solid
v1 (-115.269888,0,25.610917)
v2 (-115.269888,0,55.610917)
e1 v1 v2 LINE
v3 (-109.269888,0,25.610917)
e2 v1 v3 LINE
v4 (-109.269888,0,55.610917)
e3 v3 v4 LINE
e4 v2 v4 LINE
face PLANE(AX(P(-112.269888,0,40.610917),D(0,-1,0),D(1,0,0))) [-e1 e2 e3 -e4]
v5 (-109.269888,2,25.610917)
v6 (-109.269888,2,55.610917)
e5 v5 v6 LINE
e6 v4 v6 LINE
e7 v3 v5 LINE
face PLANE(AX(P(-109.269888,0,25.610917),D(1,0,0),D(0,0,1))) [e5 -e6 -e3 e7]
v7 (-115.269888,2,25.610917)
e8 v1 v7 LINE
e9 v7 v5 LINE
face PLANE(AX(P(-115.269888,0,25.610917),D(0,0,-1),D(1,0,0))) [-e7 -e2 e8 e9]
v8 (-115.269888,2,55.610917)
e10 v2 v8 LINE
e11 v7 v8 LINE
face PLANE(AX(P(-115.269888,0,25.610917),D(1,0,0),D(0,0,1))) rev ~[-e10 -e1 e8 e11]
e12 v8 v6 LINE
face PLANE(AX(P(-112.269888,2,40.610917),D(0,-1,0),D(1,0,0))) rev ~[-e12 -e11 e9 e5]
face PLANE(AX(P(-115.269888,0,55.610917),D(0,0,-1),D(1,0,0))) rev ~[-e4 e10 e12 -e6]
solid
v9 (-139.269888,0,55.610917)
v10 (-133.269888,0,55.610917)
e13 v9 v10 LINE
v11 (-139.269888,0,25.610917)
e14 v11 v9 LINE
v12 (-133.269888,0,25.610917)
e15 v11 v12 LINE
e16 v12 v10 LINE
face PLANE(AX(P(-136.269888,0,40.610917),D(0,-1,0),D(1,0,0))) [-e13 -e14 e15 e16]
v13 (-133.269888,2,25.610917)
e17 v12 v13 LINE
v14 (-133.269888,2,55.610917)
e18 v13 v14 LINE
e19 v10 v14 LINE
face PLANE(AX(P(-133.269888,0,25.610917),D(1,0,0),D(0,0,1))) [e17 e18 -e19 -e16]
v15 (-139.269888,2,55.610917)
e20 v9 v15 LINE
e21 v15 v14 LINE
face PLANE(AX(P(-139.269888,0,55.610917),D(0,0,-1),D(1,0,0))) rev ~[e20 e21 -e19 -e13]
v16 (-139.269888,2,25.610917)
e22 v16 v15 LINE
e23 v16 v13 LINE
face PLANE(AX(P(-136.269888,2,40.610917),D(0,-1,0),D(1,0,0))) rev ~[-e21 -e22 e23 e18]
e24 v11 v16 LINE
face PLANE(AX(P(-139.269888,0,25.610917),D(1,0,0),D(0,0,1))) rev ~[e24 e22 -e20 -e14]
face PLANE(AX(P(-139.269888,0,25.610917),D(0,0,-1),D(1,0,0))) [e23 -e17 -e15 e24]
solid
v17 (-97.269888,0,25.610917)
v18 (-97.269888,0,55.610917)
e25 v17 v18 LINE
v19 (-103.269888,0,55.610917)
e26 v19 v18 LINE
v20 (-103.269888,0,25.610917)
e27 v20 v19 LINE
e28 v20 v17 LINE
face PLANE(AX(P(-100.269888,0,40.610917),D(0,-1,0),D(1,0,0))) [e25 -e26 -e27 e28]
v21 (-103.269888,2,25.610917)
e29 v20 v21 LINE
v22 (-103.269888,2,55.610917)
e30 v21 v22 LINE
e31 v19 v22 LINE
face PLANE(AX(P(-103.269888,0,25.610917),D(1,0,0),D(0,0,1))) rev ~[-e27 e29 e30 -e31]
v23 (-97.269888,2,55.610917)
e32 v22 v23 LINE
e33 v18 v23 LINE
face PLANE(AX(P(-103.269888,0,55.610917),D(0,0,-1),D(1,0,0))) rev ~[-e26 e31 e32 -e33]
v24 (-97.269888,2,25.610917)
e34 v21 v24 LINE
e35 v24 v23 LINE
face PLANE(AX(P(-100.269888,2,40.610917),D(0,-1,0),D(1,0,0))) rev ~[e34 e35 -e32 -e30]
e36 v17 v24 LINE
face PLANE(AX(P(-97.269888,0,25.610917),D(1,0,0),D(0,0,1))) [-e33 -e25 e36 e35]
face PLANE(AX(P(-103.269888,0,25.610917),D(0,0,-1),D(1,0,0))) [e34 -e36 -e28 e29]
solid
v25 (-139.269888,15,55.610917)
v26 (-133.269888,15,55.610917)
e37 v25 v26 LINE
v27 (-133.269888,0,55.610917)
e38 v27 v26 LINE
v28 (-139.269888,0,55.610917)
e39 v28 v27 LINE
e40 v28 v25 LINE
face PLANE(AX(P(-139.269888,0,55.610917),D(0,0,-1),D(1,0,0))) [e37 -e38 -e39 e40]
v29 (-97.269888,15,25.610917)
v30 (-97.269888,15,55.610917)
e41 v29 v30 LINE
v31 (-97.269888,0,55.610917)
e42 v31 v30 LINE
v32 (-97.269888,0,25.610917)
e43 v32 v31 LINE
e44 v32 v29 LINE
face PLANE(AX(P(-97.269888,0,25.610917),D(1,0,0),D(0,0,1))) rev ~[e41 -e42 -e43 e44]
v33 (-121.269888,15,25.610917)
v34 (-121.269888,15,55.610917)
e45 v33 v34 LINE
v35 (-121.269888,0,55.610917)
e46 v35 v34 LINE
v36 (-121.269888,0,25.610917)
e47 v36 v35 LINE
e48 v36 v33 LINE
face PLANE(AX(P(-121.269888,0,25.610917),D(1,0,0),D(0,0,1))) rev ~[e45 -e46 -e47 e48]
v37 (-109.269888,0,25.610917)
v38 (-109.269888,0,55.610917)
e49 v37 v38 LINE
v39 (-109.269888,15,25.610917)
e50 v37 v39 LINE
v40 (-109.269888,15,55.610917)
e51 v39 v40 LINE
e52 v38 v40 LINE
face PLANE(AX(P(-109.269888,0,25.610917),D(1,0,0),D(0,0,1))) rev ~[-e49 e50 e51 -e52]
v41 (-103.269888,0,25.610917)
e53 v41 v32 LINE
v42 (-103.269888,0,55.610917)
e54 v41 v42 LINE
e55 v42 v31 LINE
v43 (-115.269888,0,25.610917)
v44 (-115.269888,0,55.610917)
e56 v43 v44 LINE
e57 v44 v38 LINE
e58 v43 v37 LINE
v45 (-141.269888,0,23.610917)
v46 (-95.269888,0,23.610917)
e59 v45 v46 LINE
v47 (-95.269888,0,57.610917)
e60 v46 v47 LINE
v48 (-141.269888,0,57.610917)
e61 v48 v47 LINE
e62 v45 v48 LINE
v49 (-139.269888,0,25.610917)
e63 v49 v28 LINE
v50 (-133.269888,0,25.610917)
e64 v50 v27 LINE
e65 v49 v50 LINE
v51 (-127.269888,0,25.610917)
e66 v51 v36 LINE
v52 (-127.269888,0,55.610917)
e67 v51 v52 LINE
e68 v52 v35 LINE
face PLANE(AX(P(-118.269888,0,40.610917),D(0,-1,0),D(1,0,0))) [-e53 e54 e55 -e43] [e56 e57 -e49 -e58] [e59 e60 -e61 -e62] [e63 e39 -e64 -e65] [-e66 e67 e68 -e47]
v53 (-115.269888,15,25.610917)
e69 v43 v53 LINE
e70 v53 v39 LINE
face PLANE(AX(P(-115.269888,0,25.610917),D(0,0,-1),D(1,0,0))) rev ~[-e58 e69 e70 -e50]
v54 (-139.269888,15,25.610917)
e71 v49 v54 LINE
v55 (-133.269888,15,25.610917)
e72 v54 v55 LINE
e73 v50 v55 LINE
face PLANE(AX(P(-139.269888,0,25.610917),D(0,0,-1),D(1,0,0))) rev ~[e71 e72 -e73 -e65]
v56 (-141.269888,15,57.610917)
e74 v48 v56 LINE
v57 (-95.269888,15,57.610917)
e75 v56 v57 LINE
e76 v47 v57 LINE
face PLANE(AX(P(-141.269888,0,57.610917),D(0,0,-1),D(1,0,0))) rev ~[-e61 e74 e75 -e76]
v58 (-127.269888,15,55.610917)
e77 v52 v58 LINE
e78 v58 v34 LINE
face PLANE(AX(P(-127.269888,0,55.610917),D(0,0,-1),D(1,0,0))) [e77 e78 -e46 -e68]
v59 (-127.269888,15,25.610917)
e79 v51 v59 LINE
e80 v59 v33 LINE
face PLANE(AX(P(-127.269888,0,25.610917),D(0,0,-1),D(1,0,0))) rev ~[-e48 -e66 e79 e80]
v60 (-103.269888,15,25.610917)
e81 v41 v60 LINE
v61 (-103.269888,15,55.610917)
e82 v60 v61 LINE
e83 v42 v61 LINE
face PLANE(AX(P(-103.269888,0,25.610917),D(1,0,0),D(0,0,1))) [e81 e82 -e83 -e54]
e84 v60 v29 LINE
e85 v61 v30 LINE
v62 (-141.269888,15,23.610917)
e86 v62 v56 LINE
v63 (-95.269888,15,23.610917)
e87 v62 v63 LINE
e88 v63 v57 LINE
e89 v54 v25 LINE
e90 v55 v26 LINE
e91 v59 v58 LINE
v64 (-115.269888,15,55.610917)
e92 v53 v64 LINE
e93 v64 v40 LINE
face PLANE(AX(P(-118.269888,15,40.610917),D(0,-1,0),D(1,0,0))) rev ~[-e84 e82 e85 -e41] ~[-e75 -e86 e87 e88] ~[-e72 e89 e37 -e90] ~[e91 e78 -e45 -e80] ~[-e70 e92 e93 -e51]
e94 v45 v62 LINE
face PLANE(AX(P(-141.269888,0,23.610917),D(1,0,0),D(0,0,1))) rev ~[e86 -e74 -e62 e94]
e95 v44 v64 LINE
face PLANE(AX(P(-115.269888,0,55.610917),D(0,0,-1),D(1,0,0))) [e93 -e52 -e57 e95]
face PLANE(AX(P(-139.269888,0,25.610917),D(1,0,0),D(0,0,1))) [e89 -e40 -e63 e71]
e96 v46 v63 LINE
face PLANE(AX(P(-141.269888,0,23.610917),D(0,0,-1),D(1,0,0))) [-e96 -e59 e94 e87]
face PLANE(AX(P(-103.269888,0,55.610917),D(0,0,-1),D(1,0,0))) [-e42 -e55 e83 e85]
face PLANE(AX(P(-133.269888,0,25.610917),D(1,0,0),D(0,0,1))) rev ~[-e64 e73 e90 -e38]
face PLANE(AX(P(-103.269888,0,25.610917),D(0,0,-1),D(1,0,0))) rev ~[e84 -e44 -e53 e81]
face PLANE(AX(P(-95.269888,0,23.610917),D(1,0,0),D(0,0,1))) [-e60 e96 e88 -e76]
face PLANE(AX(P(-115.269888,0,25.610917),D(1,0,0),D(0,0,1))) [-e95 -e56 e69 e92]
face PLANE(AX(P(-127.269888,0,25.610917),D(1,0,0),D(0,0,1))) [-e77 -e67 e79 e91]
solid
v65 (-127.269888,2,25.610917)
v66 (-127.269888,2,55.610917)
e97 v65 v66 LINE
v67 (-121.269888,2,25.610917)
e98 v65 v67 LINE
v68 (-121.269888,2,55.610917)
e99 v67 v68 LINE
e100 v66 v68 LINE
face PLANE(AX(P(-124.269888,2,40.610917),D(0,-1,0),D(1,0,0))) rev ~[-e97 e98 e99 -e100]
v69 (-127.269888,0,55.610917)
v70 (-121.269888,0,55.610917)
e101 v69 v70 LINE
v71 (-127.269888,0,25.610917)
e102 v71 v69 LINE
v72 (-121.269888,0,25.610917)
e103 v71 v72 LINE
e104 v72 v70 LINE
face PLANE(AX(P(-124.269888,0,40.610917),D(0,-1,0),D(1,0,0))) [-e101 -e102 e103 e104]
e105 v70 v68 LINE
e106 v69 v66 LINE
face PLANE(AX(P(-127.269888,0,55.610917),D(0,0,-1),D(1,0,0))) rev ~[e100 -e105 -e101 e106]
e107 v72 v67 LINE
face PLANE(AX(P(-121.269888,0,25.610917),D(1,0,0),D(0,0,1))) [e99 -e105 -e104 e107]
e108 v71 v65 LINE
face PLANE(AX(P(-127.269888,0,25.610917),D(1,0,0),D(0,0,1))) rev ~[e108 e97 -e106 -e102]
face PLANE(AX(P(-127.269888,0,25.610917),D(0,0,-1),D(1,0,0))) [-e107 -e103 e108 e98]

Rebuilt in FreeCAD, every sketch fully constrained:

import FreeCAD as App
import Part
import Sketcher

V = App.Vector
Q = App.Units.Quantity

doc = App.newDocument("Part")
body = doc.addObject("PartDesign::Body", "Body")
body.AllowCompound = True

# Sketch on XZ plane
sketch1 = doc.addObject("Sketcher::SketchObject", "Sketch")
body.addObject(sketch1)
sketch1.AttachmentSupport = (doc.XZ_Plane, [""])
sketch1.MapMode = "FlatFace"
sketch1.addGeometry(Part.LineSegment(V(-139, 56, 0), V(-139, 26, 0)), False)
sketch1.addGeometry(Part.LineSegment(V(-139, 26, 0), V(-133, 26, 0)), False)
sketch1.addGeometry(Part.LineSegment(V(-133, 26, 0), V(-133, 56, 0)), False)
sketch1.addGeometry(Part.LineSegment(V(-133, 56, 0), V(-139, 56, 0)), False)
sketch1.addGeometry(Part.LineSegment(V(-127, 56, 0), V(-127, 26, 0)), False)
sketch1.addGeometry(Part.LineSegment(V(-127, 26, 0), V(-121, 26, 0)), False)
sketch1.addGeometry(Part.LineSegment(V(-121, 26, 0), V(-121, 56, 0)), False)
sketch1.addGeometry(Part.LineSegment(V(-121, 56, 0), V(-127, 56, 0)), False)
sketch1.addGeometry(Part.LineSegment(V(-115, 56, 0), V(-115, 26, 0)), False)
sketch1.addGeometry(Part.LineSegment(V(-115, 26, 0), V(-109, 26, 0)), False)
sketch1.addGeometry(Part.LineSegment(V(-109, 26, 0), V(-109, 56, 0)), False)
sketch1.addGeometry(Part.LineSegment(V(-109, 56, 0), V(-115, 56, 0)), False)
sketch1.addGeometry(Part.LineSegment(V(-103, 56, 0), V(-103, 26, 0)), False)
sketch1.addGeometry(Part.LineSegment(V(-103, 26, 0), V(-97, 26, 0)), False)
sketch1.addGeometry(Part.LineSegment(V(-97, 26, 0), V(-97, 56, 0)), False)
sketch1.addGeometry(Part.LineSegment(V(-97, 56, 0), V(-103, 56, 0)), False)
sketch1.addConstraint(Sketcher.Constraint("Coincident", 0, 2, 1, 1))
sketch1.addConstraint(Sketcher.Constraint("Coincident", 1, 2, 2, 1))
sketch1.addConstraint(Sketcher.Constraint("Coincident", 2, 2, 3, 1))
sketch1.addConstraint(Sketcher.Constraint("Coincident", 3, 2, 0, 1))
sketch1.addConstraint(Sketcher.Constraint("Coincident", 4, 2, 5, 1))
sketch1.addConstraint(Sketcher.Constraint("Coincident", 5, 2, 6, 1))
sketch1.addConstraint(Sketcher.Constraint("Coincident", 6, 2, 7, 1))
sketch1.addConstraint(Sketcher.Constraint("Coincident", 7, 2, 4, 1))
sketch1.addConstraint(Sketcher.Constraint("Coincident", 8, 2, 9, 1))
sketch1.addConstraint(Sketcher.Constraint("Coincident", 9, 2, 10, 1))
sketch1.addConstraint(Sketcher.Constraint("Coincident", 10, 2, 11, 1))
sketch1.addConstraint(Sketcher.Constraint("Coincident", 11, 2, 8, 1))
sketch1.addConstraint(Sketcher.Constraint("Coincident", 12, 2, 13, 1))
sketch1.addConstraint(Sketcher.Constraint("Coincident", 13, 2, 14, 1))
sketch1.addConstraint(Sketcher.Constraint("Coincident", 14, 2, 15, 1))
sketch1.addConstraint(Sketcher.Constraint("Coincident", 15, 2, 12, 1))
sketch1.addConstraint(Sketcher.Constraint("Vertical", 0))
sketch1.addConstraint(Sketcher.Constraint("Horizontal", 1))
sketch1.addConstraint(Sketcher.Constraint("Vertical", 2))
sketch1.addConstraint(Sketcher.Constraint("Horizontal", 3))
sketch1.addConstraint(Sketcher.Constraint("Vertical", 4))
sketch1.addConstraint(Sketcher.Constraint("Horizontal", 5))
sketch1.addConstraint(Sketcher.Constraint("Vertical", 6))
sketch1.addConstraint(Sketcher.Constraint("Horizontal", 7))
sketch1.addConstraint(Sketcher.Constraint("Vertical", 8))
sketch1.addConstraint(Sketcher.Constraint("Horizontal", 9))
sketch1.addConstraint(Sketcher.Constraint("Vertical", 10))
sketch1.addConstraint(Sketcher.Constraint("Horizontal", 11))
sketch1.addConstraint(Sketcher.Constraint("Vertical", 12))
sketch1.addConstraint(Sketcher.Constraint("Horizontal", 13))
sketch1.addConstraint(Sketcher.Constraint("Vertical", 14))
sketch1.addConstraint(Sketcher.Constraint("Horizontal", 15))
sketch1.addConstraint(Sketcher.Constraint("Horizontal", 1, 2, 4, 2))
sketch1.addConstraint(Sketcher.Constraint("Horizontal", 3, 2, 6, 2))
sketch1.addConstraint(Sketcher.Constraint("Horizontal", 5, 2, 8, 2))
sketch1.addConstraint(Sketcher.Constraint("Horizontal", 7, 2, 10, 2))
sketch1.addConstraint(Sketcher.Constraint("Horizontal", 9, 2, 12, 2))
sketch1.addConstraint(Sketcher.Constraint("Horizontal", 11, 2, 14, 2))
sketch1.addConstraint(Sketcher.Constraint("Equal", 3, 5))
sketch1.addConstraint(Sketcher.Constraint("Equal", 7, 9))
sketch1.addConstraint(Sketcher.Constraint("Equal", 11, 13))
sketch1.addConstraint(Sketcher.Constraint("DistanceX", 1, 1, 1, 2, Q("6 mm")))
sketch1.addConstraint(Sketcher.Constraint("DistanceY", 0, 2, 0, 1, Q("30 mm")))
sketch1.addConstraint(Sketcher.Constraint("DistanceX", 1, 2, 4, 2, Q("6 mm")))
sketch1.addConstraint(Sketcher.Constraint("DistanceX", 5, 2, 8, 2, Q("6 mm")))
sketch1.addConstraint(Sketcher.Constraint("DistanceX", 9, 2, 12, 2, Q("6 mm")))
sketch1.addConstraint(Sketcher.Constraint("DistanceX", 0, 2, -1, 1, Q("139.269888 mm")))
sketch1.addConstraint(Sketcher.Constraint("DistanceY", -1, 1, 0, 2, Q("25.610917 mm")))
pad1 = doc.addObject("PartDesign::Pad", "Pad")
body.addObject(pad1)
pad1.Profile = sketch1
pad1.Length = 2
pad1.Reversed = True
body2 = doc.addObject("PartDesign::Body", "Body001")

# Sketch on XZ plane
sketch2 = doc.addObject("Sketcher::SketchObject", "Sketch001")
body2.addObject(sketch2)
sketch2.AttachmentSupport = (doc.getObject("XZ_Plane001"), [""])
sketch2.MapMode = "FlatFace"
sketch2.addGeometry(Part.LineSegment(V(-141, 58, 0), V(-141, 24, 0)), False)
sketch2.addGeometry(Part.LineSegment(V(-141, 24, 0), V(-95, 24, 0)), False)
sketch2.addGeometry(Part.LineSegment(V(-95, 24, 0), V(-95, 58, 0)), False)
sketch2.addGeometry(Part.LineSegment(V(-95, 58, 0), V(-141, 58, 0)), False)
sketch2.addGeometry(Part.LineSegment(V(-133, 26, 0), V(-139, 26, 0)), False)
sketch2.addGeometry(Part.LineSegment(V(-139, 26, 0), V(-139, 56, 0)), False)
sketch2.addGeometry(Part.LineSegment(V(-139, 56, 0), V(-133, 56, 0)), False)
sketch2.addGeometry(Part.LineSegment(V(-133, 56, 0), V(-133, 26, 0)), False)
sketch2.addGeometry(Part.LineSegment(V(-121, 26, 0), V(-127, 26, 0)), False)
sketch2.addGeometry(Part.LineSegment(V(-127, 26, 0), V(-127, 56, 0)), False)
sketch2.addGeometry(Part.LineSegment(V(-127, 56, 0), V(-121, 56, 0)), False)
sketch2.addGeometry(Part.LineSegment(V(-121, 56, 0), V(-121, 26, 0)), False)
sketch2.addGeometry(Part.LineSegment(V(-109, 26, 0), V(-115, 26, 0)), False)
sketch2.addGeometry(Part.LineSegment(V(-115, 26, 0), V(-115, 56, 0)), False)
sketch2.addGeometry(Part.LineSegment(V(-115, 56, 0), V(-109, 56, 0)), False)
sketch2.addGeometry(Part.LineSegment(V(-109, 56, 0), V(-109, 26, 0)), False)
sketch2.addGeometry(Part.LineSegment(V(-97, 26, 0), V(-103, 26, 0)), False)
sketch2.addGeometry(Part.LineSegment(V(-103, 26, 0), V(-103, 56, 0)), False)
sketch2.addGeometry(Part.LineSegment(V(-103, 56, 0), V(-97, 56, 0)), False)
sketch2.addGeometry(Part.LineSegment(V(-97, 56, 0), V(-97, 26, 0)), False)
sketch2.addConstraint(Sketcher.Constraint("Coincident", 0, 2, 1, 1))
sketch2.addConstraint(Sketcher.Constraint("Coincident", 1, 2, 2, 1))
sketch2.addConstraint(Sketcher.Constraint("Coincident", 2, 2, 3, 1))
sketch2.addConstraint(Sketcher.Constraint("Coincident", 3, 2, 0, 1))
sketch2.addConstraint(Sketcher.Constraint("Coincident", 4, 2, 5, 1))
sketch2.addConstraint(Sketcher.Constraint("Coincident", 5, 2, 6, 1))
sketch2.addConstraint(Sketcher.Constraint("Coincident", 6, 2, 7, 1))
sketch2.addConstraint(Sketcher.Constraint("Coincident", 7, 2, 4, 1))
sketch2.addConstraint(Sketcher.Constraint("Coincident", 8, 2, 9, 1))
sketch2.addConstraint(Sketcher.Constraint("Coincident", 9, 2, 10, 1))
sketch2.addConstraint(Sketcher.Constraint("Coincident", 10, 2, 11, 1))
sketch2.addConstraint(Sketcher.Constraint("Coincident", 11, 2, 8, 1))
sketch2.addConstraint(Sketcher.Constraint("Coincident", 12, 2, 13, 1))
sketch2.addConstraint(Sketcher.Constraint("Coincident", 13, 2, 14, 1))
sketch2.addConstraint(Sketcher.Constraint("Coincident", 14, 2, 15, 1))
sketch2.addConstraint(Sketcher.Constraint("Coincident", 15, 2, 12, 1))
sketch2.addConstraint(Sketcher.Constraint("Coincident", 16, 2, 17, 1))
sketch2.addConstraint(Sketcher.Constraint("Coincident", 17, 2, 18, 1))
sketch2.addConstraint(Sketcher.Constraint("Coincident", 18, 2, 19, 1))
sketch2.addConstraint(Sketcher.Constraint("Coincident", 19, 2, 16, 1))
sketch2.addConstraint(Sketcher.Constraint("Vertical", 0))
sketch2.addConstraint(Sketcher.Constraint("Horizontal", 1))
sketch2.addConstraint(Sketcher.Constraint("Vertical", 2))
sketch2.addConstraint(Sketcher.Constraint("Horizontal", 3))
sketch2.addConstraint(Sketcher.Constraint("Horizontal", 4))
sketch2.addConstraint(Sketcher.Constraint("Vertical", 5))
sketch2.addConstraint(Sketcher.Constraint("Horizontal", 6))
sketch2.addConstraint(Sketcher.Constraint("Vertical", 7))
sketch2.addConstraint(Sketcher.Constraint("Horizontal", 8))
sketch2.addConstraint(Sketcher.Constraint("Vertical", 9))
sketch2.addConstraint(Sketcher.Constraint("Horizontal", 10))
sketch2.addConstraint(Sketcher.Constraint("Vertical", 11))
sketch2.addConstraint(Sketcher.Constraint("Horizontal", 12))
sketch2.addConstraint(Sketcher.Constraint("Vertical", 13))
sketch2.addConstraint(Sketcher.Constraint("Horizontal", 14))
sketch2.addConstraint(Sketcher.Constraint("Vertical", 15))
sketch2.addConstraint(Sketcher.Constraint("Horizontal", 16))
sketch2.addConstraint(Sketcher.Constraint("Vertical", 17))
sketch2.addConstraint(Sketcher.Constraint("Horizontal", 18))
sketch2.addConstraint(Sketcher.Constraint("Vertical", 19))
sketch2.addConstraint(Sketcher.Constraint("Horizontal", 7, 2, 8, 2))
sketch2.addConstraint(Sketcher.Constraint("Horizontal", 6, 2, 9, 2))
sketch2.addConstraint(Sketcher.Constraint("Horizontal", 11, 2, 12, 2))
sketch2.addConstraint(Sketcher.Constraint("Horizontal", 10, 2, 13, 2))
sketch2.addConstraint(Sketcher.Constraint("Horizontal", 15, 2, 16, 2))
sketch2.addConstraint(Sketcher.Constraint("Horizontal", 14, 2, 17, 2))
sketch2.addConstraint(Sketcher.Constraint("Equal", 6, 8))
sketch2.addConstraint(Sketcher.Constraint("Equal", 10, 12))
sketch2.addConstraint(Sketcher.Constraint("Equal", 14, 16))
sketch2.addConstraint(Sketcher.Constraint("DistanceX", 1, 1, 1, 2, Q("46 mm")))
sketch2.addConstraint(Sketcher.Constraint("DistanceX", 4, 2, 4, 1, Q("6 mm")))
sketch2.addConstraint(Sketcher.Constraint("DistanceY", 0, 2, 0, 1, Q("34 mm")))
sketch2.addConstraint(Sketcher.Constraint("DistanceY", 5, 1, 5, 2, Q("30 mm")))
sketch2.addConstraint(Sketcher.Constraint("DistanceX", 0, 2, 4, 2, Q("2 mm")))
sketch2.addConstraint(Sketcher.Constraint("DistanceY", 0, 2, 4, 2, Q("2 mm")))
sketch2.addConstraint(Sketcher.Constraint("DistanceX", 7, 2, 8, 2, Q("6 mm")))
sketch2.addConstraint(Sketcher.Constraint("DistanceX", 11, 2, 12, 2, Q("6 mm")))
sketch2.addConstraint(Sketcher.Constraint("DistanceX", 15, 2, 16, 2, Q("6 mm")))
sketch2.addConstraint(Sketcher.Constraint("DistanceX", 0, 2, -1, 1, Q("141.269888 mm")))
sketch2.addConstraint(Sketcher.Constraint("DistanceY", -1, 1, 0, 2, Q("23.610917 mm")))
pad2 = doc.addObject("PartDesign::Pad", "Pad001")
body2.addObject(pad2)
pad2.Profile = sketch2
pad2.Length = 15
pad2.Reversed = True

doc.recompute()
